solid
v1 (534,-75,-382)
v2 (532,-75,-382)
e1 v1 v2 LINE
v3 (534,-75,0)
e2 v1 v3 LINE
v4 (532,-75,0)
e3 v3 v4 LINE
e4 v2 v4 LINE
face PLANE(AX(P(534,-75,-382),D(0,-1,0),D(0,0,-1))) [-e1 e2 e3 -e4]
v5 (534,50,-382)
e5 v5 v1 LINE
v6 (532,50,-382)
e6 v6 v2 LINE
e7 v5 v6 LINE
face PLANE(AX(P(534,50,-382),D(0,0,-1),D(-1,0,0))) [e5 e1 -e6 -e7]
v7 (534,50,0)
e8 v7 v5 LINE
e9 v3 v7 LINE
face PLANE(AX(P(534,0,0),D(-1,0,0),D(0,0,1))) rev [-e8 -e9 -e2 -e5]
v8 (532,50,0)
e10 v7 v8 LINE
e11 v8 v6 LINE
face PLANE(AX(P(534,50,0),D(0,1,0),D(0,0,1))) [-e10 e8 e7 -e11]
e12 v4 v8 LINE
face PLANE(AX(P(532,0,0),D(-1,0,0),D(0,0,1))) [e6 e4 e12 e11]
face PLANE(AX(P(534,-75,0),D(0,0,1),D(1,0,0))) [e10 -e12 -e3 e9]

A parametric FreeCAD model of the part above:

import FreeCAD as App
import Part
import Sketcher

doc = App.newDocument("Part")
body = doc.addObject("PartDesign::Body", "Body")

# Sketch on YZ plane
sketch1 = body.newObject("Sketcher::SketchObject", "Sketch")
sketch1.AttachmentSupport = (doc.getObject("YZ_Plane"), [""])
sketch1.MapMode = "FlatFace"
sketch1.AttachmentOffset = App.Placement(App.Vector(0, 0, 532), App.Rotation())
sketch1.addGeometry([
    Part.LineSegment(App.Vector(50, 0, 0), App.Vector(50, -382, 0)),
    Part.LineSegment(App.Vector(50, -382, 0), App.Vector(-75, -382, 0)),
    Part.LineSegment(App.Vector(-75, -382, 0), App.Vector(-75, 0, 0)),
    Part.LineSegment(App.Vector(-75, 0, 0), App.Vector(50, 0, 0)),
], False)
sketch1.addConstraint([
    Sketcher.Constraint("Coincident", 0, 2, 1, 1),
    Sketcher.Constraint("Coincident", 1, 2, 2, 1),
    Sketcher.Constraint("Coincident", 2, 2, 3, 1),
    Sketcher.Constraint("Coincident", 3, 2, 0, 1),
    Sketcher.Constraint("Vertical", 0),
    Sketcher.Constraint("Horizontal", 1),
    Sketcher.Constraint("Vertical", 2),
    Sketcher.Constraint("Horizontal", 3),
    Sketcher.Constraint("PointOnObject", 2, 2, -1),
    Sketcher.Constraint("DistanceX", 1, 2, 1, 1, 125.0),
    Sketcher.Constraint("DistanceY", 0, 2, 0, 1, 382.0),
    Sketcher.Constraint("DistanceX", -1, 1, 0, 2, 50.0),
])
pad1 = body.newObject("PartDesign::Pad", "Pad")
pad1.Profile = sketch1
pad1.Length = 2

doc.recompute()
